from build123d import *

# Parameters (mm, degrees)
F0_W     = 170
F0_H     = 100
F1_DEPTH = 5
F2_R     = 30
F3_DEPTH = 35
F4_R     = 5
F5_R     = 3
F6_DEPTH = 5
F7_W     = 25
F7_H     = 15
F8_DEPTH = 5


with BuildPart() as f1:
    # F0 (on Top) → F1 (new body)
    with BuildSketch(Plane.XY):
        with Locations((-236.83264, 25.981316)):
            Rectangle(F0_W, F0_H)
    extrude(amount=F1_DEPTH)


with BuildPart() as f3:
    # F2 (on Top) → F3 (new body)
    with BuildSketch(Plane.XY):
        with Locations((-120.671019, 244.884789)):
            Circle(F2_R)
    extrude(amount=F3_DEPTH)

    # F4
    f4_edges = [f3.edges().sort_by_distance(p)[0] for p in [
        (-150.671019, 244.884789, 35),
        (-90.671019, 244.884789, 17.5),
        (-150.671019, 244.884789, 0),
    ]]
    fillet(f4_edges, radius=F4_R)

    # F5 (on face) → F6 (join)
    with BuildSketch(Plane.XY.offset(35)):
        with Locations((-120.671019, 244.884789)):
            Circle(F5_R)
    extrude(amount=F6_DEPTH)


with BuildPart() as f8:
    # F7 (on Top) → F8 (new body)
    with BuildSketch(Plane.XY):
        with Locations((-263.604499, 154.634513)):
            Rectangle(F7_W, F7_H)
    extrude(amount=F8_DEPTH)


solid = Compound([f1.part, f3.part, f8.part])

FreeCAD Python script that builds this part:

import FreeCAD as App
import Part
import Sketcher

V = App.Vector


def add_polygon(sketch, points):
    """Adds a closed chain of lines whose ends are joined by coincident constraints."""
    first, n = sketch.GeometryCount, len(points)
    for a, b in zip(points, points[1:] + points[:1]):
        sketch.addGeometry(Part.LineSegment(App.Vector(*a, 0), App.Vector(*b, 0)), False)
    for i in range(n):
        sketch.addConstraint(Sketcher.Constraint("Coincident", first + i, 2, first + (i + 1) % n, 1))

doc = App.newDocument("Part")
params = doc.addObject("Spreadsheet::Sheet", "Params")
for row, (alias, value) in enumerate([
    ("sketch1_width", "170 mm"),
    ("sketch1_height", "100 mm"),
    ("pad1_length", "5 mm"),
    ("sketch2_diameter", "60 mm"),
    ("pad2_length", "35 mm"),
    ("fillet_radius", "5 mm"),
    ("sketch3_diameter", "6 mm"),
    ("pad3_length", "5 mm"),
    ("sketch4_width", "25 mm"),
    ("sketch4_height", "15 mm"),
    ("pad4_length", "5 mm"),
], start=1):
    params.set(f"A{row}", alias)
    params.set(f"B{row}", "=" + value)
    params.setAlias(f"B{row}", alias)

body = doc.addObject("PartDesign::Body", "Body")

sketch1 = body.newObject("Sketcher::SketchObject", "Sketch")
sketch1.AttachmentSupport = (doc.getObject("XY_Plane"), [""])
sketch1.MapMode = "FlatFace"
add_polygon(sketch1, [(-322, 76), (-322, -24), (-152, -24), (-152, 76)])
sketch1.addConstraint([
    Sketcher.Constraint("Vertical", 0),
    Sketcher.Constraint("Horizontal", 1),
    Sketcher.Constraint("Vertical", 2),
    Sketcher.Constraint("Horizontal", 3),
    Sketcher.Constraint("DistanceX", 1, 1, 1, 2, 170.0),
    Sketcher.Constraint("DistanceY", 0, 2, 0, 1, 100.0),
    Sketcher.Constraint("DistanceX", 0, 2, -1, 1, 321.83264),
    Sketcher.Constraint("DistanceY", 0, 2, -1, 1, 24.018684),
])
sketch1.setExpression("Constraints[8]", "Params.sketch1_width")
sketch1.setExpression("Constraints[9]", "Params.sketch1_height")
pad1 = body.newObject("PartDesign::Pad", "Pad")
pad1.Profile = sketch1
pad1.setExpression("Length", "Params.pad1_length")
body2 = doc.addObject("PartDesign::Body", "Body001")

sketch2 = body2.newObject("Sketcher::SketchObject", "Sketch001")
sketch2.AttachmentSupport = (doc.getObject("XY_Plane001"), [""])
sketch2.MapMode = "FlatFace"
sketch2.addGeometry(Part.Circle(V(-121, 245, 0), V(0, 0, 1), 30), False)
sketch2.addConstraint([
    Sketcher.Constraint("Diameter", 0, 60.0),
    Sketcher.Constraint("DistanceX", 0, 3, -1, 1, 120.671019),
    Sketcher.Constraint("DistanceY", -1, 1, 0, 3, 244.884789),
])
sketch2.setExpression("Constraints[0]", "Params.sketch2_diameter")
pad2 = body2.newObject("PartDesign::Pad", "Pad001")
pad2.Profile = sketch2
pad2.setExpression("Length", "Params.pad2_length")
doc.recompute()

fillet = body2.newObject("PartDesign::Fillet", "Fillet")
fillet.Base = (pad2, ["Edge1"])
fillet.UseAllEdges = True
fillet.setExpression("Radius", "Params.fillet_radius")

sketch3 = body2.newObject("Sketcher::SketchObject", "Sketch002")
sketch3.AttachmentSupport = (doc.getObject("XY_Plane001"), [""])
sketch3.MapMode = "FlatFace"
sketch3.AttachmentOffset = App.Placement(V(0, 0, 35), App.Rotation())
sketch3.addGeometry(Part.Circle(V(-120.7, 244.9, 0), V(0, 0, 1), 3), False)
sketch3.addConstraint([
    Sketcher.Constraint("Diameter", 0, 6.0),
    Sketcher.Constraint("DistanceX", 0, 3, -1, 1, 120.671019),
    Sketcher.Constraint("DistanceY", -1, 1, 0, 3, 244.884789),
])
sketch3.setExpression("Constraints[0]", "Params.sketch3_diameter")
pad3 = body2.newObject("PartDesign::Pad", "Pad002")
pad3.Profile = sketch3
pad3.setExpression("Length", "Params.pad3_length")
body3 = doc.addObject("PartDesign::Body", "Body002")

sketch4 = body3.newObject("Sketcher::SketchObject", "Sketch003")
sketch4.AttachmentSupport = (doc.getObject("XY_Plane002"), [""])
sketch4.MapMode = "FlatFace"
add_polygon(sketch4, [(-276, 162), (-276, 147), (-251, 147), (-251, 162)])
sketch4.addConstraint([
    Sketcher.Constraint("Vertical", 0),
    Sketcher.Constraint("Horizontal", 1),
    Sketcher.Constraint("Vertical", 2),
    Sketcher.Constraint("Horizontal", 3),
    Sketcher.Constraint("DistanceX", 1, 1, 1, 2, 25.0),
    Sketcher.Constraint("DistanceY", 0, 2, 0, 1, 15.0),
    Sketcher.Constraint("DistanceX", 0, 2, -1, 1, 276.104499),
    Sketcher.Constraint("DistanceY", -1, 1, 0, 2, 147.134513),
])
sketch4.setExpression("Constraints[8]", "Params.sketch4_width")
sketch4.setExpression("Constraints[9]", "Params.sketch4_height")
pad4 = body3.newObject("PartDesign::Pad", "Pad003")
pad4.Profile = sketch4
pad4.setExpression("Length", "Params.pad4_length")

doc.recompute()
